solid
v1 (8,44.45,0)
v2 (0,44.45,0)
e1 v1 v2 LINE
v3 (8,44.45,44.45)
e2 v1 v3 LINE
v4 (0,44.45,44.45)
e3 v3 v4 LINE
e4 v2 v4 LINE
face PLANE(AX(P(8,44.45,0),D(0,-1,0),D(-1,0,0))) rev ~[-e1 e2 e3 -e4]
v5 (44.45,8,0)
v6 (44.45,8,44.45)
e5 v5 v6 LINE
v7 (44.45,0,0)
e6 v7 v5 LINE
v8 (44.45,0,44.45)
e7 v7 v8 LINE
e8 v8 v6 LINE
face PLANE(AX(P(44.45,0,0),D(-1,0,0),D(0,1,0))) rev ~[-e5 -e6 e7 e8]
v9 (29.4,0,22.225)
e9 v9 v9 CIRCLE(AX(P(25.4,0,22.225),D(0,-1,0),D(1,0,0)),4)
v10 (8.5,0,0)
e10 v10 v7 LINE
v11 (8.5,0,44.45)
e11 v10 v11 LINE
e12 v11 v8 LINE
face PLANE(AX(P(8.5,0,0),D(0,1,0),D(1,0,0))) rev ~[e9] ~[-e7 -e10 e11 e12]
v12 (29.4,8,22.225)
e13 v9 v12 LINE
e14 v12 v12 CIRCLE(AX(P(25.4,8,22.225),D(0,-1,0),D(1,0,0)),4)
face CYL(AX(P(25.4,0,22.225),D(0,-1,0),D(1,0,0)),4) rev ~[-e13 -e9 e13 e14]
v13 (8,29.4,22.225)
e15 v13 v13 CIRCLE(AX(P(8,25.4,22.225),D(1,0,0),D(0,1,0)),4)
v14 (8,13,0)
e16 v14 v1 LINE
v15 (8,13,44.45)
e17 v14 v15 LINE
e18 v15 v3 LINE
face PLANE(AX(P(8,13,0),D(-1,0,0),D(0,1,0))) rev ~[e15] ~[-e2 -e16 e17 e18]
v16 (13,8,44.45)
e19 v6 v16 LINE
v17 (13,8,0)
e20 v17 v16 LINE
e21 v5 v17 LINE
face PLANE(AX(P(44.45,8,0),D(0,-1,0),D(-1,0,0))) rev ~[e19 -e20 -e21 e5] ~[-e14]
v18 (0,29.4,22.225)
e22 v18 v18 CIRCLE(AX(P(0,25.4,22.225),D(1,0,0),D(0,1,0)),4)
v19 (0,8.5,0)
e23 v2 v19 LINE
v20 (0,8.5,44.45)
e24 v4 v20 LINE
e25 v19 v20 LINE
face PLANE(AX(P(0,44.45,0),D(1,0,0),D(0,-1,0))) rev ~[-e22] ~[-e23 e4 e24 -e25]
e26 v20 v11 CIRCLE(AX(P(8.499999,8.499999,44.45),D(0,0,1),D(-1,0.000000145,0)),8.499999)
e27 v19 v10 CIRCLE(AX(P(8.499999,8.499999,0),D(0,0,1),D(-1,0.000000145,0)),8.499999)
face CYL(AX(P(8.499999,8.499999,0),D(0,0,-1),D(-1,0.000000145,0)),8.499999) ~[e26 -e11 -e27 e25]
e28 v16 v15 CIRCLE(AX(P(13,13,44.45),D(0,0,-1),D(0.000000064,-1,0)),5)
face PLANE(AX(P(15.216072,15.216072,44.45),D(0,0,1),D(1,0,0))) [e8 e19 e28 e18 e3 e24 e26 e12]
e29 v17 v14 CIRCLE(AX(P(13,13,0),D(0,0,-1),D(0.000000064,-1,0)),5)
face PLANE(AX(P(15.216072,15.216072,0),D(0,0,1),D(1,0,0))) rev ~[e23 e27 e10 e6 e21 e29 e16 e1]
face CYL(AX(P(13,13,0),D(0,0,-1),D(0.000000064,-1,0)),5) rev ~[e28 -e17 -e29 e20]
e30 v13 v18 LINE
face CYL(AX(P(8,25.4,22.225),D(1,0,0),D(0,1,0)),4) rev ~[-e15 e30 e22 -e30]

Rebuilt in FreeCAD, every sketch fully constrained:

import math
import FreeCAD as App
import Part
import Sketcher
from FreeCAD import Vector
Q = App.Units.Quantity

doc = App.newDocument("Part")
body = doc.addObject("PartDesign::Body", "Body")

sketch1 = body.newObject("Sketcher::SketchObject", "Sketch")
sketch1.AttachmentSupport = (doc.getObject("XY_Plane"), [""])
sketch1.MapMode = "FlatFace"
sketch1.addGeometry([
    Part.LineSegment(Vector(8, 44.5, 0), Vector(0, 44.5, 0)),
    Part.LineSegment(Vector(0, 44.5, 0), Vector(0, 8.5, 0)),
    Part.ArcOfCircle(Part.Circle(Vector(8.5, 8.5, 0), Vector(0, 0, 1), 8.5), math.radians(180), math.radians(270)),
    Part.LineSegment(Vector(8.5, 0, 0), Vector(44.5, 0, 0)),
    Part.LineSegment(Vector(44.5, 0, 0), Vector(44.5, 8, 0)),
    Part.LineSegment(Vector(44.5, 8, 0), Vector(13, 8, 0)),
    Part.ArcOfCircle(Part.Circle(Vector(13, 13, 0), Vector(0, 0, 1), 5), math.radians(180), math.radians(270)),
    Part.LineSegment(Vector(8, 13, 0), Vector(8, 44.5, 0)),
], False)
sketch1.addConstraint([
    Sketcher.Constraint("Coincident", 0, 2, 1, 1),
    Sketcher.Constraint("Tangent", 1, 2, 2, 1),
    Sketcher.Constraint("Tangent", 2, 2, 3, 1),
    Sketcher.Constraint("Coincident", 3, 2, 4, 1),
    Sketcher.Constraint("Coincident", 4, 2, 5, 1),
    Sketcher.Constraint("Tangent", 5, 2, 6, 2),
    Sketcher.Constraint("Tangent", 6, 1, 7, 1),
    Sketcher.Constraint("Coincident", 7, 2, 0, 1),
    Sketcher.Constraint("Horizontal", 0),
    Sketcher.Constraint("Vertical", 1),
    Sketcher.Constraint("Horizontal", 3),
    Sketcher.Constraint("Vertical", 4),
    Sketcher.Constraint("Horizontal", 5),
    Sketcher.Constraint("Vertical", 7),
    Sketcher.Constraint("PointOnObject", 0, 2, -2),
    Sketcher.Constraint("PointOnObject", 2, 2, -1),
    Sketcher.Constraint("Equal", 3, 1),
    Sketcher.Constraint("Equal", 0, 4),
    Sketcher.Constraint("Radius", 6, Q("5 mm")),
    Sketcher.Constraint("Radius", 2, Q("8.499999 mm")),
    Sketcher.Constraint("DistanceX", 0, 2, 0, 1, Q("8 mm")),
    Sketcher.Constraint("DistanceX", 3, 1, 3, 2, Q("35.95 mm")),
])
pad1 = body.newObject("PartDesign::Pad", "Pad")
pad1.Profile = sketch1
pad1.Length = 44.45

sketch2 = body.newObject("Sketcher::SketchObject", "Sketch001")
sketch2.AttachmentSupport = (doc.getObject("YZ_Plane"), [""])
sketch2.MapMode = "FlatFace"
sketch2.AttachmentOffset = App.Placement(Vector(0, 0, 8), App.Rotation())
sketch2.addGeometry(Part.Circle(Vector(25.4, 22.2, 0), Vector(0, 0, 1), 4), False)
sketch2.addConstraint([
    Sketcher.Constraint("Diameter", 0, Q("8 mm")),
    Sketcher.Constraint("DistanceX", -1, 1, 0, 3, Q("25.4 mm")),
    Sketcher.Constraint("DistanceY", -1, 1, 0, 3, Q("22.225 mm")),
])
pocket1 = body.newObject("PartDesign::Pocket", "Pocket")
pocket1.Profile = sketch2
pocket1.Type = "ThroughAll"

sketch3 = body.newObject("Sketcher::SketchObject", "Sketch002")
sketch3.AttachmentSupport = (doc.getObject("XZ_Plane"), [""])
sketch3.MapMode = "FlatFace"
sketch3.addGeometry(Part.Circle(Vector(25.4, 22.2, 0), Vector(0, 0, 1), 4), False)
sketch3.addConstraint([
    Sketcher.Constraint("Diameter", 0, Q("8 mm")),
    Sketcher.Constraint("DistanceX", -1, 1, 0, 3, Q("25.4 mm")),
    Sketcher.Constraint("DistanceY", -1, 1, 0, 3, Q("22.225 mm")),
])
pocket2 = body.newObject("PartDesign::Pocket", "Pocket001")
pocket2.Profile = sketch3
pocket2.Type = "ThroughAll"

doc.recompute()
